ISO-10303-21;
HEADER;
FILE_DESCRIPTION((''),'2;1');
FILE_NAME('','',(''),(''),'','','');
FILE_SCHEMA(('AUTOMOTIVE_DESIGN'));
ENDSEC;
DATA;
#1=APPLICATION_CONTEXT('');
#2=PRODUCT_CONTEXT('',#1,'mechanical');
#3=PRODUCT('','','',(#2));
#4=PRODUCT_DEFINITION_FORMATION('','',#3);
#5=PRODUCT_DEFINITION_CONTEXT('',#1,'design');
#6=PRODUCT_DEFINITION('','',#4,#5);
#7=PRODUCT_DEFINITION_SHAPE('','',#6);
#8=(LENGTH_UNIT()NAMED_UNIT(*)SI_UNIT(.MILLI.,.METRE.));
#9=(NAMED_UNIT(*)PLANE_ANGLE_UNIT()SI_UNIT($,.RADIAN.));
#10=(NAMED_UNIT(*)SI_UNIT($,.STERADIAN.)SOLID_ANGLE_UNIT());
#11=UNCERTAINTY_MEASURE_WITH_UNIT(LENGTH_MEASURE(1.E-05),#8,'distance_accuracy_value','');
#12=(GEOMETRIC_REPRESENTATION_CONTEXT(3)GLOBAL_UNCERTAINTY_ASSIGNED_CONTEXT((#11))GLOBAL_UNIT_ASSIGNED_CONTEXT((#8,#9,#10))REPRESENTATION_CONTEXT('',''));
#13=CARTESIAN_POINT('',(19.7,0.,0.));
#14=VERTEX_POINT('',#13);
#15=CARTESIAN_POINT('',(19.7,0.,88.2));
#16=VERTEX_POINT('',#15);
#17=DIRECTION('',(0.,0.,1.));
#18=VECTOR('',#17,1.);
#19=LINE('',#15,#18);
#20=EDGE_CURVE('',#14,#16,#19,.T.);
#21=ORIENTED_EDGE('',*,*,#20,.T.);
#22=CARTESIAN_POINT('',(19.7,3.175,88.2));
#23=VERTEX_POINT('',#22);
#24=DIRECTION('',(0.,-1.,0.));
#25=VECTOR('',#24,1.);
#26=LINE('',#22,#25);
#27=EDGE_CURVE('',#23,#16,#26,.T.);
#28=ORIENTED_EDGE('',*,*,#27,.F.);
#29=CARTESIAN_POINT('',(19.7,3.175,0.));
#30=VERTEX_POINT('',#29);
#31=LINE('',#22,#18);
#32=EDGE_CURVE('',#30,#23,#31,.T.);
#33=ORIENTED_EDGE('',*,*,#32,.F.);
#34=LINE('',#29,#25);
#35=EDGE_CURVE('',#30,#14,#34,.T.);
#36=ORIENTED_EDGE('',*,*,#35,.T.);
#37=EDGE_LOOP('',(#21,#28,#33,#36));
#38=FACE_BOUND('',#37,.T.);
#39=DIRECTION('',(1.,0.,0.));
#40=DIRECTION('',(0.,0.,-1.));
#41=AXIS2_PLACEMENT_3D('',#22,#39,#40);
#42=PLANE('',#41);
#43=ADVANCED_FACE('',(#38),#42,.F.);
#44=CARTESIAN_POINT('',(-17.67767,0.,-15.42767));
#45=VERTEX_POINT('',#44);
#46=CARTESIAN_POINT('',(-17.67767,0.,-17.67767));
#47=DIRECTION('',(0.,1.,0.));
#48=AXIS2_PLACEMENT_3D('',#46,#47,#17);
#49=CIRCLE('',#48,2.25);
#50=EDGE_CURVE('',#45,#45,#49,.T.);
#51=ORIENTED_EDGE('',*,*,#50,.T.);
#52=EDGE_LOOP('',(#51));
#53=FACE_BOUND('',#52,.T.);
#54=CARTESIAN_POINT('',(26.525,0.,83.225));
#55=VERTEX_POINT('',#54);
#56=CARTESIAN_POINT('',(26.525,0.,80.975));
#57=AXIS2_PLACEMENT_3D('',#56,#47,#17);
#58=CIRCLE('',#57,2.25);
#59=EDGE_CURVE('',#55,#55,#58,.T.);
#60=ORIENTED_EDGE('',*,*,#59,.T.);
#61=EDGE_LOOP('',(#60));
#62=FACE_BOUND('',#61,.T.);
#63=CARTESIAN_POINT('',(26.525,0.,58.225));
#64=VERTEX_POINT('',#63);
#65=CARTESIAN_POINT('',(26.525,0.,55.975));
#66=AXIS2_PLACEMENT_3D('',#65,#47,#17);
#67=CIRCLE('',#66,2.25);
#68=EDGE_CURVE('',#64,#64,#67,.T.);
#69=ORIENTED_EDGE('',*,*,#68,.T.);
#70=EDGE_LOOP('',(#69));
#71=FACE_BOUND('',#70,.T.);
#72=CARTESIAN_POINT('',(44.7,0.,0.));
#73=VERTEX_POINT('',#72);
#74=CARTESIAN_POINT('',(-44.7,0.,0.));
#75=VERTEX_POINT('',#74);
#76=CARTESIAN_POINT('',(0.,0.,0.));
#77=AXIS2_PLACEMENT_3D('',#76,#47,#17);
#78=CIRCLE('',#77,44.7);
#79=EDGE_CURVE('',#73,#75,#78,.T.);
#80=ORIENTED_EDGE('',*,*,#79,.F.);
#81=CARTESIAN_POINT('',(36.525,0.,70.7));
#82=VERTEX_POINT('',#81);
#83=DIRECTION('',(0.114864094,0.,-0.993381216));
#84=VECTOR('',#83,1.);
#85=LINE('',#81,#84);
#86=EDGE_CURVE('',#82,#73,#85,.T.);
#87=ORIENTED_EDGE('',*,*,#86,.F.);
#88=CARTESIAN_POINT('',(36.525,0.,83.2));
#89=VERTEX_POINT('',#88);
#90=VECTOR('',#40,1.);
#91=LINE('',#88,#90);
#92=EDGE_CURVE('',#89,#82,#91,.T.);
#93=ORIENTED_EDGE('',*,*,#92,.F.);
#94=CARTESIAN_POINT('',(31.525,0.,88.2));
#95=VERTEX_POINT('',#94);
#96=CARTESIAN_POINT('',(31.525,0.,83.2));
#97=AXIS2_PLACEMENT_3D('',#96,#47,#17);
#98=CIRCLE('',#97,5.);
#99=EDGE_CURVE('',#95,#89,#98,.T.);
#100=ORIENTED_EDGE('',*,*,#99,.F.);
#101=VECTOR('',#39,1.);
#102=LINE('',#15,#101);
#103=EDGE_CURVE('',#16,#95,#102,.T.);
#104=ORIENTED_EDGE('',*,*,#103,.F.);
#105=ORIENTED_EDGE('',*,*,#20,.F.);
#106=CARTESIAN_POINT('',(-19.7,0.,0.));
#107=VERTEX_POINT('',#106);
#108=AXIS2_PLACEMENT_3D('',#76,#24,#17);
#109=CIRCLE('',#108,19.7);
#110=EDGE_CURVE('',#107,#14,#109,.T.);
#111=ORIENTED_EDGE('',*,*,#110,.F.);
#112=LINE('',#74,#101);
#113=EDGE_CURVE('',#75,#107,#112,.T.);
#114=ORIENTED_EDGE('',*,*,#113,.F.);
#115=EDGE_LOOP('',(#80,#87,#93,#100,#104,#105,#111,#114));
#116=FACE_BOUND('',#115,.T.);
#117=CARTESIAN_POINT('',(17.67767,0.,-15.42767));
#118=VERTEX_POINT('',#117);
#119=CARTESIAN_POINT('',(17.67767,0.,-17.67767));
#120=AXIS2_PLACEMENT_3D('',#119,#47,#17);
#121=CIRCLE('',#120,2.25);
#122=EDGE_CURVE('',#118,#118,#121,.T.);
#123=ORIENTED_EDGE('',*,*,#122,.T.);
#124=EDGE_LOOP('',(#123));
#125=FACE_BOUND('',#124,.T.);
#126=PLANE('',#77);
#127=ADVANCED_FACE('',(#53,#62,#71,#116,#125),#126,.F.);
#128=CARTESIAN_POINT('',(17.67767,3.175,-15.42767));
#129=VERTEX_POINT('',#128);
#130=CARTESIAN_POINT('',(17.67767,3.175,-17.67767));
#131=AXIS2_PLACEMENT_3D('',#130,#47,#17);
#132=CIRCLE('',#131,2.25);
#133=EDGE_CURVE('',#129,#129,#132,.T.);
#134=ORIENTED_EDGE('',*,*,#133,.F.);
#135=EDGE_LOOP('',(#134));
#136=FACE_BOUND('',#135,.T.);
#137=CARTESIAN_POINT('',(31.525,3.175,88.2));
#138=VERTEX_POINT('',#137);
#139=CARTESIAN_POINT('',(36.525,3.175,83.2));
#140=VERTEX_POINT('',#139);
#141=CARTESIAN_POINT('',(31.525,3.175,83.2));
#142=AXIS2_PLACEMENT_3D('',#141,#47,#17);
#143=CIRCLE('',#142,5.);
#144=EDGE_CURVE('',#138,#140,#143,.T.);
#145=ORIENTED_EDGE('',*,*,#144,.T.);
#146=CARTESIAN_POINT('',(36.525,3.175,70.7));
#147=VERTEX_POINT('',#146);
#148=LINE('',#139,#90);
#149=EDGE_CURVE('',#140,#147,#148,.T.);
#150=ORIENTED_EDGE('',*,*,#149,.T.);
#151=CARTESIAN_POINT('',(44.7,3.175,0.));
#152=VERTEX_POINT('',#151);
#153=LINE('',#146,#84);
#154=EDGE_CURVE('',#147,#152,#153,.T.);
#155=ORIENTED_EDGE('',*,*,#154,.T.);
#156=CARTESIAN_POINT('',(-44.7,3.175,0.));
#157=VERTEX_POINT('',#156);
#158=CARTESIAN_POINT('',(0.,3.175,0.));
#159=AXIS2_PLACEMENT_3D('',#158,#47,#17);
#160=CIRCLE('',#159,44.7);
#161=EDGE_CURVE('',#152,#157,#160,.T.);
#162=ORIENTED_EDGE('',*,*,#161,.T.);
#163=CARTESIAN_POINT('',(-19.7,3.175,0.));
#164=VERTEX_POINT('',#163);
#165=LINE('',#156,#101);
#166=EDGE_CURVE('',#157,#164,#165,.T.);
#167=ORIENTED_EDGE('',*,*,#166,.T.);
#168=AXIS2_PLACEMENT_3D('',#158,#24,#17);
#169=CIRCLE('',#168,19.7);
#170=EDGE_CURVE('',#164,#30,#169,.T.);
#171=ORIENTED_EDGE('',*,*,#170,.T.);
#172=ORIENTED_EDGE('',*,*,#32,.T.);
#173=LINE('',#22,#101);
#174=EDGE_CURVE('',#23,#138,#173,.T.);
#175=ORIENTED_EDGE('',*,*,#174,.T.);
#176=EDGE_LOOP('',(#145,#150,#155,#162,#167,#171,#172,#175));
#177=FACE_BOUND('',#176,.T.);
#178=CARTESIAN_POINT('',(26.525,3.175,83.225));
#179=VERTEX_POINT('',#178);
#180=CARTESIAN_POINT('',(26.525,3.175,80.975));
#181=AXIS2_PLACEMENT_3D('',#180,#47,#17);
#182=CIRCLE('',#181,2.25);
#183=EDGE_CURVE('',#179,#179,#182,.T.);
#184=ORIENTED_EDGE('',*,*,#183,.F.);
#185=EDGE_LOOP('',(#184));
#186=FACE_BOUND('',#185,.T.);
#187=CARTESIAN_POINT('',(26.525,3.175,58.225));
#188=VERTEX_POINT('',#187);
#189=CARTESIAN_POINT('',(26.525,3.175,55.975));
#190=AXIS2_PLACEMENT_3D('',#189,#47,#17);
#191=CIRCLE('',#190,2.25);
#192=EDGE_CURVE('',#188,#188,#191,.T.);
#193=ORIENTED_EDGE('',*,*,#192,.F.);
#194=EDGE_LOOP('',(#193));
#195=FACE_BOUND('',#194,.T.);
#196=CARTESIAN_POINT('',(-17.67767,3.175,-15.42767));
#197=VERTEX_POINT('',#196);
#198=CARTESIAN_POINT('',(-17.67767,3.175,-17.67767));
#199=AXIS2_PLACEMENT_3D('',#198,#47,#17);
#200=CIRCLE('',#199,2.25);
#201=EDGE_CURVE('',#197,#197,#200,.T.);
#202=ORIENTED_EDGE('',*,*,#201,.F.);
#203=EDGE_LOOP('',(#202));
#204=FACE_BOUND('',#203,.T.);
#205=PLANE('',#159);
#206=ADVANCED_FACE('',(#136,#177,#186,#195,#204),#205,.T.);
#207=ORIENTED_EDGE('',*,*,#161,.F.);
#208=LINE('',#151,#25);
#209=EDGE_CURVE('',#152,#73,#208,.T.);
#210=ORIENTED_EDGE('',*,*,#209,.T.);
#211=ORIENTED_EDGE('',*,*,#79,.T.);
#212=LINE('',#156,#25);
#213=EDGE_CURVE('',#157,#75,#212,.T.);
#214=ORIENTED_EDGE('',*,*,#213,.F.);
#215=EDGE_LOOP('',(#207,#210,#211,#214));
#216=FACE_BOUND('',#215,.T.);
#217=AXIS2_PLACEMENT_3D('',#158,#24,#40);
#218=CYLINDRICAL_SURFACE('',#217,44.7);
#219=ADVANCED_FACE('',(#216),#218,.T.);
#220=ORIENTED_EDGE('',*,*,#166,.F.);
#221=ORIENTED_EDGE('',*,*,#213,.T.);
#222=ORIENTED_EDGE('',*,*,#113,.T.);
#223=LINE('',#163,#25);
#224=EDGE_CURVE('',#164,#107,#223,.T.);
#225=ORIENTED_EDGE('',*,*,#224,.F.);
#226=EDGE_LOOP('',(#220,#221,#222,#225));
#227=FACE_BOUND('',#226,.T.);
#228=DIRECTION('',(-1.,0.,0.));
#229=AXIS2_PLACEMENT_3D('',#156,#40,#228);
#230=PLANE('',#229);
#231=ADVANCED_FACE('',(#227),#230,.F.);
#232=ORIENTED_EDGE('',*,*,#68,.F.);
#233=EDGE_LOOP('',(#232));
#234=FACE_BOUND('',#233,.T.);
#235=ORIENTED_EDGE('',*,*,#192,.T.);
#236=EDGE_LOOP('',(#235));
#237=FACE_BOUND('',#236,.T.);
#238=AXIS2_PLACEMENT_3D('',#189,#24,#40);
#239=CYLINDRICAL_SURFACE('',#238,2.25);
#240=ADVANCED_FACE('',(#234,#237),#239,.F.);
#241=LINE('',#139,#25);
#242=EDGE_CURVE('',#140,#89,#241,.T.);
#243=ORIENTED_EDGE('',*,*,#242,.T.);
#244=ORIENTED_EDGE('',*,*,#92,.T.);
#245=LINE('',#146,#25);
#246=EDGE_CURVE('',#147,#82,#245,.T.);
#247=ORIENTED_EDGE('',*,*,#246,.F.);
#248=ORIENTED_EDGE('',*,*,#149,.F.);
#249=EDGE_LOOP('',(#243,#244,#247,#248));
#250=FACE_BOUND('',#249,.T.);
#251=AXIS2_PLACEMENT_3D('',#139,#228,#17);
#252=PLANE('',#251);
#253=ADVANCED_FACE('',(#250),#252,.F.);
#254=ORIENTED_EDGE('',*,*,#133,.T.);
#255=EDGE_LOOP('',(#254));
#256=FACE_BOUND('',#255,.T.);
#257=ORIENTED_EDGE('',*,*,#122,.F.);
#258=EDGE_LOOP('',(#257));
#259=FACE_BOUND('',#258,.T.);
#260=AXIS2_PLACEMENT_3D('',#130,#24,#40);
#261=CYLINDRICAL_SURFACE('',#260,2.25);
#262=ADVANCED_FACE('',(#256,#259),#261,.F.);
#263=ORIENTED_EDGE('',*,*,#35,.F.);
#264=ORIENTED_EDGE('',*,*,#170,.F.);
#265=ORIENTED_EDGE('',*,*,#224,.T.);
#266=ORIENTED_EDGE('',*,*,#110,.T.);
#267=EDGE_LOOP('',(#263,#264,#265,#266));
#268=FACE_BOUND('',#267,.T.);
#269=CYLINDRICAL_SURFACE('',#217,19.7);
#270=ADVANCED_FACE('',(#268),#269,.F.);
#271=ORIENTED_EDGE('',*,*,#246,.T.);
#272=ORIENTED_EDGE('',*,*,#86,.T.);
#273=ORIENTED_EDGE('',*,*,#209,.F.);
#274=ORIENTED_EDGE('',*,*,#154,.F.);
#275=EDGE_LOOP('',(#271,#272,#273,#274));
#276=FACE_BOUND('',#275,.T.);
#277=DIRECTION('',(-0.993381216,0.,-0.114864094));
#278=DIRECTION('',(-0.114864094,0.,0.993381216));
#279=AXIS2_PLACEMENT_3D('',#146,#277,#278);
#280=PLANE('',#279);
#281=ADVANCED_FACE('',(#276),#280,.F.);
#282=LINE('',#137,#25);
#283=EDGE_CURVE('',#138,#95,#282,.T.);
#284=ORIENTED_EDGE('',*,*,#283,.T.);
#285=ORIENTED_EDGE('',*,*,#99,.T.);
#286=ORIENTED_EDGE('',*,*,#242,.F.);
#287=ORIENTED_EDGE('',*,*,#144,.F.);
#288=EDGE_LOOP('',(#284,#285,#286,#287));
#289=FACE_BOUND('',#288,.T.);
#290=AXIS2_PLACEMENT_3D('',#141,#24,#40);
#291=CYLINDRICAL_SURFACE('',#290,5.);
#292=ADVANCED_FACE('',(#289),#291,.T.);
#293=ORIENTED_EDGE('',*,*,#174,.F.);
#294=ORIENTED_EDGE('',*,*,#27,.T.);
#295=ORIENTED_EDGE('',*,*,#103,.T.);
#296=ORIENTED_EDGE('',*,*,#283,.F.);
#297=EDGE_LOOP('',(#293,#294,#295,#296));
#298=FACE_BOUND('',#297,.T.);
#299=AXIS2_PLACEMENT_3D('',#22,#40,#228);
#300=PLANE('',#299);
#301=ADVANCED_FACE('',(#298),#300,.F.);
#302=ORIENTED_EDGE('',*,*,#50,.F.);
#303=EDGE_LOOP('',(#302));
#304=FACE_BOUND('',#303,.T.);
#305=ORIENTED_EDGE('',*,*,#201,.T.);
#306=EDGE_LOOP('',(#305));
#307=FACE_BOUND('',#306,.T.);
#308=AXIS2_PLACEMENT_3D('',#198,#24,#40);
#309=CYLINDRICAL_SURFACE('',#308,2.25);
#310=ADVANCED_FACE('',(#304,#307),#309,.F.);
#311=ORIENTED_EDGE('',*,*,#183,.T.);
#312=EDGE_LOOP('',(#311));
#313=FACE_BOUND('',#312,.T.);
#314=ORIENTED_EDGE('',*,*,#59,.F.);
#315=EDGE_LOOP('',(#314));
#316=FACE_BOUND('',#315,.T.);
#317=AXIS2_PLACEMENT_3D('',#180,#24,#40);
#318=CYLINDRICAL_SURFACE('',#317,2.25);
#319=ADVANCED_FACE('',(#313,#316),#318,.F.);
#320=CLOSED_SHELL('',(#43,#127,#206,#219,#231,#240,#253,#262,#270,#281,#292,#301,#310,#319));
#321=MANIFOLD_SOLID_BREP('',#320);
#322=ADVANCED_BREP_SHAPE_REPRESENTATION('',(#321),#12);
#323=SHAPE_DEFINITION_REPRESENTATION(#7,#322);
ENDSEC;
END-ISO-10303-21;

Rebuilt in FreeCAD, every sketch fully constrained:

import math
import FreeCAD as App
import Part
import Sketcher

V = App.Vector

doc = App.newDocument("Part")
body = doc.addObject("PartDesign::Body", "Body")

# Sketch on XZ plane
sketch1 = body.newObject("Sketcher::SketchObject", "Sketch")
sketch1.AttachmentSupport = (doc.getObject("XZ_Plane"), [""])
sketch1.MapMode = "FlatFace"
sketch1.addGeometry([
    Part.LineSegment(V(19.7, 88.2, 0), V(31.525, 88.2, 0)),  # 0
    Part.ArcOfCircle(Part.Circle(V(31.525, 83.2, 0), V(0, 0, 1), 5), math.radians(0), math.radians(90)),  # 1
    Part.LineSegment(V(36.525, 83.2, 0), V(36.525, 70.7, 0)),  # 2
    Part.LineSegment(V(36.525, 70.7, 0), V(44.7, 0, 0)),  # 3
    Part.ArcOfCircle(Part.Circle(V(0, 0, 0), V(0, 0, 1), 44.7), math.radians(180), math.radians(360)),  # 4
    Part.LineSegment(V(-44.7, 0, 0), V(-19.7, 0, 0)),  # 5
    Part.ArcOfCircle(Part.Circle(V(0, 0, 0), V(0, 0, 1), 19.7), math.radians(180), math.radians(360)),  # 6
    Part.LineSegment(V(19.7, 0, 0), V(19.7, 88.2, 0)),  # 7
    Part.Circle(V(26.525, 80.975, 0), V(0, 0, 1), 2.25),  # 8
    Part.Circle(V(26.525, 55.975, 0), V(0, 0, 1), 2.25),  # 9
    Part.Circle(V(-17.67767, -17.67767, 0), V(0, 0, 1), 2.25),  # 10
    Part.Circle(V(17.67767, -17.67767, 0), V(0, 0, 1), 2.25),  # 11
], False)
sketch1.addConstraint([
    Sketcher.Constraint("Tangent", 0, 2, 1, 2),
    Sketcher.Constraint("Tangent", 1, 1, 2, 1),
    Sketcher.Constraint("Coincident", 2, 2, 3, 1),
    Sketcher.Constraint("Coincident", 3, 2, 4, 2),
    Sketcher.Constraint("Coincident", 4, 1, 5, 1),
    Sketcher.Constraint("Coincident", 5, 2, 6, 1),
    Sketcher.Constraint("Tangent", 6, 2, 7, 1),
    Sketcher.Constraint("Coincident", 7, 2, 0, 1),
    Sketcher.Constraint("Horizontal", 0),
    Sketcher.Constraint("Vertical", 2),
    Sketcher.Constraint("Horizontal", 5),
    Sketcher.Constraint("Vertical", 7),
    Sketcher.Constraint("Coincident", 4, 3, -1, 1),
    Sketcher.Constraint("Coincident", 6, 3, -1, 1),
    Sketcher.Constraint("Equal", 8, 9),
    Sketcher.Constraint("Equal", 9, 10),
    Sketcher.Constraint("Equal", 10, 11),
    Sketcher.Constraint("Symmetric", 10, 3, 11, 3, -2),
    Sketcher.Constraint("PointOnObject", 3, 2, -1),
    Sketcher.Constraint("PointOnObject", 4, 1, -1),
    Sketcher.Constraint("Vertical", 8, 3, 9, 3),
    Sketcher.Constraint("Radius", 1, 5.0),
    Sketcher.Constraint("Diameter", 8, 4.5),
    Sketcher.Constraint("Radius", 4, 44.7),
    Sketcher.Constraint("Radius", 6, 19.7),
    Sketcher.Constraint("DistanceY", 2, 2, 2, 1, 12.5),
    Sketcher.Constraint("DistanceY", 7, 1, 7, 2, 88.2),
    Sketcher.Constraint("DistanceX", 8, 3, 1, 3, 5.0),
    Sketcher.Constraint("DistanceY", 9, 3, 8, 3, 25.0),
    Sketcher.Constraint("DistanceX", 0, 1, 0, 2, 11.825),
    Sketcher.Constraint("DistanceY", -1, 1, 8, 3, 80.975),
    Sketcher.Constraint("DistanceX", 10, 3, -1, 1, 17.67767),
    Sketcher.Constraint("DistanceY", 10, 3, -1, 1, 17.67767),
])
pad1 = body.newObject("PartDesign::Pad", "Pad")
pad1.Profile = sketch1
pad1.Length = 3.175
pad1.Reversed = True

doc.recompute()
